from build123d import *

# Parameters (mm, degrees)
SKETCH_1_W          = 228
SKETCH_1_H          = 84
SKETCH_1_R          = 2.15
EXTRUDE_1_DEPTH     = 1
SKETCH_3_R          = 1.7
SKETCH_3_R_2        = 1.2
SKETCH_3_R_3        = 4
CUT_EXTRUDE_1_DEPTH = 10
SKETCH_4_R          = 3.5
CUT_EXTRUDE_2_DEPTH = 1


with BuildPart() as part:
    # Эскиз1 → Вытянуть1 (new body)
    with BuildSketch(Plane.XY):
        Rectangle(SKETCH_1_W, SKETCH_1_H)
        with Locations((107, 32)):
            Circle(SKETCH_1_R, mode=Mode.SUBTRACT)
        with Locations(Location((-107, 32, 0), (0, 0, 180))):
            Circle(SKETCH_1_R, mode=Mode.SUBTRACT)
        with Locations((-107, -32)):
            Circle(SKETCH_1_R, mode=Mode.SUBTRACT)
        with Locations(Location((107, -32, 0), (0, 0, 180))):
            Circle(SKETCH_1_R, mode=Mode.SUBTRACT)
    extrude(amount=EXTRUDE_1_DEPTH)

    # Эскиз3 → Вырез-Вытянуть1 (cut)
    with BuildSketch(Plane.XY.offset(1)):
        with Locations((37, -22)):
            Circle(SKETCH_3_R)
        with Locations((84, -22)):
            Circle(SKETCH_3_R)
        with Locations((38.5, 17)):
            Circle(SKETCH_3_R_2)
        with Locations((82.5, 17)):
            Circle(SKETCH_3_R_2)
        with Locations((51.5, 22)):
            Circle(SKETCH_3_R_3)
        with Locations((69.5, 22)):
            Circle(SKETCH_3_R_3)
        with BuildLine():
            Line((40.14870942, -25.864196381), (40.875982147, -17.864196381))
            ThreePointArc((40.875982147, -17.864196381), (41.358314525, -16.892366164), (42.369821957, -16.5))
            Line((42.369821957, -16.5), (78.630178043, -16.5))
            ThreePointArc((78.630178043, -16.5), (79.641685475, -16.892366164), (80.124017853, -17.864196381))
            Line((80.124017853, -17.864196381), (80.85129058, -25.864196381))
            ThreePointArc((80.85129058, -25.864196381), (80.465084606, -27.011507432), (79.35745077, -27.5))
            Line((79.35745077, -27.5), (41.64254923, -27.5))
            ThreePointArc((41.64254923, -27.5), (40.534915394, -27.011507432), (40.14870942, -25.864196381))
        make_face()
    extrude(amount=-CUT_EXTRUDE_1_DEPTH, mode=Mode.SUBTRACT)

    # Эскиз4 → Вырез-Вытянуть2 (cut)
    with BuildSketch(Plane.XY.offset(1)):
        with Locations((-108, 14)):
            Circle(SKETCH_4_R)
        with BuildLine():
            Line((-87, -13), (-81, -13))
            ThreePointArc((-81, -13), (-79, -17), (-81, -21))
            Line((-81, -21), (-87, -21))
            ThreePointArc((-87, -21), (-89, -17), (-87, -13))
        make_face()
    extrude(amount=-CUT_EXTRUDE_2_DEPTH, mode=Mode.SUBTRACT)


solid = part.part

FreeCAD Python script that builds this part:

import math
import FreeCAD as App
import Part
import Sketcher

V = App.Vector

doc = App.newDocument("Part")
body = doc.addObject("PartDesign::Body", "Body")

# Sketch on XY plane
sketch1 = body.newObject("Sketcher::SketchObject", "Sketch")
sketch1.AttachmentSupport = (doc.getObject("XY_Plane"), [""])
sketch1.MapMode = "FlatFace"
sketch1.addGeometry([
    Part.LineSegment(V(-114, 42, 0), V(-114, -42, 0)),  # 0
    Part.LineSegment(V(-114, -42, 0), V(114, -42, 0)),  # 1
    Part.LineSegment(V(114, -42, 0), V(114, 42, 0)),  # 2
    Part.LineSegment(V(114, 42, 0), V(-114, 42, 0)),  # 3
    Part.Circle(V(-107, -32, 0), V(0, 0, 1), 2.1),  # 4
    Part.Circle(V(107, -32, 0), V(0, 0, 1), 2.1),  # 5
    Part.Circle(V(-107, 32, 0), V(0, 0, 1), 2.1),  # 6
    Part.Circle(V(107, 32, 0), V(0, 0, 1), 2.1),  # 7
], False)
sketch1.addConstraint([
    Sketcher.Constraint("Coincident", 0, 2, 1, 1),
    Sketcher.Constraint("Coincident", 1, 2, 2, 1),
    Sketcher.Constraint("Coincident", 2, 2, 3, 1),
    Sketcher.Constraint("Coincident", 3, 2, 0, 1),
    Sketcher.Constraint("Vertical", 0),
    Sketcher.Constraint("Horizontal", 1),
    Sketcher.Constraint("Vertical", 2),
    Sketcher.Constraint("Horizontal", 3),
    Sketcher.Constraint("Equal", 4, 5),
    Sketcher.Constraint("Equal", 5, 6),
    Sketcher.Constraint("Equal", 6, 7),
    Sketcher.Constraint("Symmetric", 5, 3, 6, 3, -1, 1),
    Sketcher.Constraint("Symmetric", 4, 3, 7, 3, -1, 1),
    Sketcher.Constraint("Symmetric", 0, 2, 2, 2, -1, 1),
    Sketcher.Constraint("Symmetric", 4, 3, 5, 3, -2),
    Sketcher.Constraint("Diameter", 4, 4.3),
    Sketcher.Constraint("DistanceX", 1, 1, 1, 2, 228.0),
    Sketcher.Constraint("DistanceY", 0, 2, 0, 1, 84.0),
    Sketcher.Constraint("DistanceX", 4, 3, -1, 1, 107.0),
    Sketcher.Constraint("DistanceY", 4, 3, -1, 1, 32.0),
])
pad1 = body.newObject("PartDesign::Pad", "Pad")
pad1.Profile = sketch1
pad1.Length = 1

# Sketch on XY plane
sketch2 = body.newObject("Sketcher::SketchObject", "Sketch001")
sketch2.AttachmentSupport = (doc.getObject("XY_Plane"), [""])
sketch2.MapMode = "FlatFace"
sketch2.AttachmentOffset = App.Placement(V(0, 0, 1), App.Rotation())
sketch2.addGeometry([
    Part.Circle(V(37, -22, 0), V(0, 0, 1), 1.7),  # 0
    Part.Circle(V(84, -22, 0), V(0, 0, 1), 1.7),  # 1
    Part.Circle(V(38.5, 17, 0), V(0, 0, 1), 1.2),  # 2
    Part.Circle(V(82.5, 17, 0), V(0, 0, 1), 1.2),  # 3
    Part.Circle(V(51.5, 22, 0), V(0, 0, 1), 4),  # 4
    Part.Circle(V(69.5, 22, 0), V(0, 0, 1), 4),  # 5
    Part.LineSegment(V(40.9, -17.9, 0), V(40.1, -25.9, 0)),  # 6
    Part.ArcOfCircle(Part.Circle(V(41.6, -26, 0), V(0, 0, 1), 1.5), math.radians(175), math.radians(270)),  # 7
    Part.LineSegment(V(41.6, -27.5, 0), V(79.4, -27.5, 0)),  # 8
    Part.ArcOfCircle(Part.Circle(V(79.4, -26, 0), V(0, 0, 1), 1.5), math.radians(-90), math.radians(5)),  # 9
    Part.LineSegment(V(80.9, -25.9, 0), V(80.1, -17.9, 0)),  # 10
    Part.ArcOfCircle(Part.Circle(V(78.6, -18, 0), V(0, 0, 1), 1.5), math.radians(5), math.radians(90)),  # 11
    Part.LineSegment(V(78.6, -16.5, 0), V(42.4, -16.5, 0)),  # 12
    Part.ArcOfCircle(Part.Circle(V(42.4, -18, 0), V(0, 0, 1), 1.5), math.radians(90), math.radians(175)),  # 13
], False)
sketch2.addConstraint([
    Sketcher.Constraint("Tangent", 6, 2, 7, 1),
    Sketcher.Constraint("Tangent", 7, 2, 8, 1),
    Sketcher.Constraint("Tangent", 8, 2, 9, 1),
    Sketcher.Constraint("Tangent", 9, 2, 10, 1),
    Sketcher.Constraint("Tangent", 10, 2, 11, 1),
    Sketcher.Constraint("Tangent", 11, 2, 12, 1),
    Sketcher.Constraint("Tangent", 12, 2, 13, 1),
    Sketcher.Constraint("Tangent", 13, 2, 6, 1),
    Sketcher.Constraint("Horizontal", 8),
    Sketcher.Constraint("Horizontal", 12),
    Sketcher.Constraint("Equal", 0, 1),
    Sketcher.Constraint("Equal", 2, 3),
    Sketcher.Constraint("Equal", 4, 5),
    Sketcher.Constraint("Equal", 7, 9),
    Sketcher.Constraint("Equal", 9, 11),
    Sketcher.Constraint("Equal", 11, 13),
    Sketcher.Constraint("Horizontal", 0, 3, 1, 3),
    Sketcher.Constraint("Horizontal", 2, 3, 3, 3),
    Sketcher.Constraint("Horizontal", 4, 3, 5, 3),
    Sketcher.Constraint("Horizontal", 6, 2, 9, 2),
    Sketcher.Constraint("Diameter", 4, 8.0),
    Sketcher.Constraint("Diameter", 0, 3.4),
    Sketcher.Constraint("Diameter", 2, 2.4),
    Sketcher.Constraint("Radius", 7, 1.5),
    Sketcher.Constraint("DistanceX", -1, 1, 0, 3, 37.0),
    Sketcher.Constraint("DistanceY", 0, 3, -1, 1, 22.0),
    Sketcher.Constraint("DistanceX", -1, 1, 1, 3, 84.0),
    Sketcher.Constraint("DistanceY", -1, 1, 2, 3, 17.0),
    Sketcher.Constraint("DistanceY", -1, 1, 4, 3, 22.0),
    Sketcher.Constraint("DistanceY", 7, 3, -1, 1, 26.0),
    Sketcher.Constraint("DistanceY", 11, 3, -1, 1, 18.0),
    Sketcher.Constraint("DistanceX", 2, 3, 3, 3, 44.0),
    Sketcher.Constraint("DistanceX", 2, 3, 4, 3, 13.0),
    Sketcher.Constraint("DistanceX", 5, 3, 3, 3, 13.0),
    Sketcher.Constraint("DistanceX", -1, 1, 2, 3, 38.5),
    Sketcher.Constraint("DistanceX", 8, 1, 8, 2, 37.714902),
    Sketcher.Constraint("Distance", 6, 8.03299),
    Sketcher.Constraint("DistanceX", -1, 1, 7, 3, 41.642549),
])
pocket1 = body.newObject("PartDesign::Pocket", "Pocket")
pocket1.Profile = sketch2
pocket1.Length = 10

# Sketch on XY plane
sketch3 = body.newObject("Sketcher::SketchObject", "Sketch002")
sketch3.AttachmentSupport = (doc.getObject("XY_Plane"), [""])
sketch3.MapMode = "FlatFace"
sketch3.AttachmentOffset = App.Placement(V(0, 0, 1), App.Rotation())
sketch3.addGeometry([
    Part.Circle(V(-108, 14, 0), V(0, 0, 1), 3.5),  # 0
    Part.LineSegment(V(-81, -13, 0), V(-87, -13, 0)),  # 1
    Part.ArcOfCircle(Part.Circle(V(-84, -17, 0), V(0, 0, 1), 5), math.radians(127), math.radians(233)),  # 2
    Part.LineSegment(V(-87, -21, 0), V(-81, -21, 0)),  # 3
    Part.ArcOfCircle(Part.Circle(V(-84, -17, 0), V(0, 0, 1), 5), math.radians(-53), math.radians(53)),  # 4
], False)
sketch3.addConstraint([
    Sketcher.Constraint("Coincident", 1, 2, 2, 1),
    Sketcher.Constraint("Coincident", 2, 2, 3, 1),
    Sketcher.Constraint("Coincident", 3, 2, 4, 1),
    Sketcher.Constraint("Coincident", 4, 2, 1, 1),
    Sketcher.Constraint("Horizontal", 1),
    Sketcher.Constraint("Horizontal", 3),
    Sketcher.Constraint("Coincident", 4, 3, 2, 3),
    Sketcher.Constraint("Equal", 2, 4),
    Sketcher.Constraint("Vertical", 1, 2, 2, 2),
    Sketcher.Constraint("Diameter", 0, 7.0),
    Sketcher.Constraint("Radius", 2, 5.0),
    Sketcher.Constraint("DistanceX", 1, 2, 1, 1, 6.0),
    Sketcher.Constraint("DistanceX", 0, 3, -1, 1, 108.0),
    Sketcher.Constraint("DistanceY", -1, 1, 0, 3, 14.0),
    Sketcher.Constraint("DistanceX", 2, 3, -1, 1, 84.0),
    Sketcher.Constraint("DistanceY", 2, 3, -1, 1, 17.0),
])
pocket2 = body.newObject("PartDesign::Pocket", "Pocket001")
pocket2.Profile = sketch3
pocket2.Length = 1

doc.recompute()
